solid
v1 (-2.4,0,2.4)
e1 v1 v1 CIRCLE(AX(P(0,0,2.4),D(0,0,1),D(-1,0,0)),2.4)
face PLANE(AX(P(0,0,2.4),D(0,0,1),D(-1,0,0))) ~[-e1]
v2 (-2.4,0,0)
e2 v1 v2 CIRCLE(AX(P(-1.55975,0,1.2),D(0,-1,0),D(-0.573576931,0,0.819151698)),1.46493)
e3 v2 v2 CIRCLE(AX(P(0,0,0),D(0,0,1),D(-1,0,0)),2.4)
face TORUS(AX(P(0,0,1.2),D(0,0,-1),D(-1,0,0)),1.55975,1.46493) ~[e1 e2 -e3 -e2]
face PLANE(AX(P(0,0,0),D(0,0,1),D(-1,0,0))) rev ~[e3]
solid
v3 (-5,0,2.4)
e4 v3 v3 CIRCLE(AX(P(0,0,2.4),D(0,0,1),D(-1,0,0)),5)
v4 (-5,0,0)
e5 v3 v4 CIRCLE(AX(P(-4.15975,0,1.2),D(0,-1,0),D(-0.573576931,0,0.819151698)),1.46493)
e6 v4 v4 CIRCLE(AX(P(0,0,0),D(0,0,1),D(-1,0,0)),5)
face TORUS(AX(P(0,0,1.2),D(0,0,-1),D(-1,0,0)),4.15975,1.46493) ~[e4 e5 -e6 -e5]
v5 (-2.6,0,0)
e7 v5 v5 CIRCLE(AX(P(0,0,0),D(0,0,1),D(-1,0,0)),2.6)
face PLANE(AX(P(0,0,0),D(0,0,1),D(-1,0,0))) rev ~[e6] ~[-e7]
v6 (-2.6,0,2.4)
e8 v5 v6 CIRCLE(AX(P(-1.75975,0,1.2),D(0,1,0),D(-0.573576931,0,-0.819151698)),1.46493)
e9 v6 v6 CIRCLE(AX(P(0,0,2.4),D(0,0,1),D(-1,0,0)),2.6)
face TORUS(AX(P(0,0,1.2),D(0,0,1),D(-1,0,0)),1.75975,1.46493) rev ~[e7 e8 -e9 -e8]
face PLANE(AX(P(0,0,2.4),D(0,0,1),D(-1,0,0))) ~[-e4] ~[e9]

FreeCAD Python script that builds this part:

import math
import FreeCAD as App
import Part
import Sketcher

V = App.Vector
Q = App.Units.Quantity

doc = App.newDocument("Part")
body = doc.addObject("PartDesign::Body", "Body")
body.AllowCompound = True

# Sketch on XZ plane
sketch1 = body.newObject("Sketcher::SketchObject", "Sketch")
sketch1.AttachmentSupport = (doc.getObject("XZ_Plane"), [""])
sketch1.MapMode = "FlatFace"
sketch1.addGeometry([
    Part.LineSegment(V(0, 2.4, 0), V(-2.4, 2.4, 0)),  # 0
    Part.ArcOfCircle(Part.Circle(V(-1.6, 1.2, 0), V(0, 0, 1), 1.5), math.radians(125), math.radians(235)),  # 1
    Part.LineSegment(V(-2.4, 0, 0), V(0, 0, 0)),  # 2
    Part.LineSegment(V(0, 0, 0), V(0, 2.4, 0)),  # 3
    Part.LineSegment(V(-5, 0, 0), V(-2.6, 0, 0)),  # 4
    Part.ArcOfCircle(Part.Circle(V(-1.8, 1.2, 0), V(0, 0, 1), 1.5), math.radians(125), math.radians(235)),  # 5
    Part.LineSegment(V(-2.6, 2.4, 0), V(-5, 2.4, 0)),  # 6
    Part.ArcOfCircle(Part.Circle(V(-4.2, 1.2, 0), V(0, 0, 1), 1.5), math.radians(125), math.radians(235)),  # 7
], False)
sketch1.addConstraint([
    Sketcher.Constraint("Coincident", 0, 2, 1, 1),
    Sketcher.Constraint("Coincident", 1, 2, 2, 1),
    Sketcher.Constraint("Coincident", 2, 2, 3, 1),
    Sketcher.Constraint("Coincident", 3, 2, 0, 1),
    Sketcher.Constraint("Coincident", 4, 2, 5, 2),
    Sketcher.Constraint("Coincident", 5, 1, 6, 1),
    Sketcher.Constraint("Coincident", 6, 2, 7, 1),
    Sketcher.Constraint("Coincident", 7, 2, 4, 1),
    Sketcher.Constraint("Horizontal", 0),
    Sketcher.Constraint("Horizontal", 2),
    Sketcher.Constraint("Vertical", 3),
    Sketcher.Constraint("Horizontal", 4),
    Sketcher.Constraint("Horizontal", 6),
    Sketcher.Constraint("Coincident", 2, 2, -1, 1),
    Sketcher.Constraint("Equal", 1, 5),
    Sketcher.Constraint("Equal", 5, 7),
    Sketcher.Constraint("PointOnObject", 4, 2, -1),
    Sketcher.Constraint("Horizontal", 1, 3, 5, 3),
    Sketcher.Constraint("Horizontal", 5, 3, 7, 3),
    Sketcher.Constraint("Horizontal", 3, 2, 5, 1),
    Sketcher.Constraint("Vertical", 0, 2, 1, 2),
    Sketcher.Constraint("Equal", 2, 4),
    Sketcher.Constraint("Equal", 6, 3),
    Sketcher.Constraint("DistanceX", 0, 2, 0, 1, Q("2.4 mm")),
    Sketcher.Constraint("DistanceX", 6, 2, -1, 1, Q("5 mm")),
    Sketcher.Constraint("Radius", 1, Q("1.46493 mm")),
])
revolution = body.newObject("PartDesign::Revolution", "Revolution")
revolution.Profile = sketch1
revolution.ReferenceAxis = (sketch1, ["V_Axis"])
revolution.Angle = 360

doc.recompute()
